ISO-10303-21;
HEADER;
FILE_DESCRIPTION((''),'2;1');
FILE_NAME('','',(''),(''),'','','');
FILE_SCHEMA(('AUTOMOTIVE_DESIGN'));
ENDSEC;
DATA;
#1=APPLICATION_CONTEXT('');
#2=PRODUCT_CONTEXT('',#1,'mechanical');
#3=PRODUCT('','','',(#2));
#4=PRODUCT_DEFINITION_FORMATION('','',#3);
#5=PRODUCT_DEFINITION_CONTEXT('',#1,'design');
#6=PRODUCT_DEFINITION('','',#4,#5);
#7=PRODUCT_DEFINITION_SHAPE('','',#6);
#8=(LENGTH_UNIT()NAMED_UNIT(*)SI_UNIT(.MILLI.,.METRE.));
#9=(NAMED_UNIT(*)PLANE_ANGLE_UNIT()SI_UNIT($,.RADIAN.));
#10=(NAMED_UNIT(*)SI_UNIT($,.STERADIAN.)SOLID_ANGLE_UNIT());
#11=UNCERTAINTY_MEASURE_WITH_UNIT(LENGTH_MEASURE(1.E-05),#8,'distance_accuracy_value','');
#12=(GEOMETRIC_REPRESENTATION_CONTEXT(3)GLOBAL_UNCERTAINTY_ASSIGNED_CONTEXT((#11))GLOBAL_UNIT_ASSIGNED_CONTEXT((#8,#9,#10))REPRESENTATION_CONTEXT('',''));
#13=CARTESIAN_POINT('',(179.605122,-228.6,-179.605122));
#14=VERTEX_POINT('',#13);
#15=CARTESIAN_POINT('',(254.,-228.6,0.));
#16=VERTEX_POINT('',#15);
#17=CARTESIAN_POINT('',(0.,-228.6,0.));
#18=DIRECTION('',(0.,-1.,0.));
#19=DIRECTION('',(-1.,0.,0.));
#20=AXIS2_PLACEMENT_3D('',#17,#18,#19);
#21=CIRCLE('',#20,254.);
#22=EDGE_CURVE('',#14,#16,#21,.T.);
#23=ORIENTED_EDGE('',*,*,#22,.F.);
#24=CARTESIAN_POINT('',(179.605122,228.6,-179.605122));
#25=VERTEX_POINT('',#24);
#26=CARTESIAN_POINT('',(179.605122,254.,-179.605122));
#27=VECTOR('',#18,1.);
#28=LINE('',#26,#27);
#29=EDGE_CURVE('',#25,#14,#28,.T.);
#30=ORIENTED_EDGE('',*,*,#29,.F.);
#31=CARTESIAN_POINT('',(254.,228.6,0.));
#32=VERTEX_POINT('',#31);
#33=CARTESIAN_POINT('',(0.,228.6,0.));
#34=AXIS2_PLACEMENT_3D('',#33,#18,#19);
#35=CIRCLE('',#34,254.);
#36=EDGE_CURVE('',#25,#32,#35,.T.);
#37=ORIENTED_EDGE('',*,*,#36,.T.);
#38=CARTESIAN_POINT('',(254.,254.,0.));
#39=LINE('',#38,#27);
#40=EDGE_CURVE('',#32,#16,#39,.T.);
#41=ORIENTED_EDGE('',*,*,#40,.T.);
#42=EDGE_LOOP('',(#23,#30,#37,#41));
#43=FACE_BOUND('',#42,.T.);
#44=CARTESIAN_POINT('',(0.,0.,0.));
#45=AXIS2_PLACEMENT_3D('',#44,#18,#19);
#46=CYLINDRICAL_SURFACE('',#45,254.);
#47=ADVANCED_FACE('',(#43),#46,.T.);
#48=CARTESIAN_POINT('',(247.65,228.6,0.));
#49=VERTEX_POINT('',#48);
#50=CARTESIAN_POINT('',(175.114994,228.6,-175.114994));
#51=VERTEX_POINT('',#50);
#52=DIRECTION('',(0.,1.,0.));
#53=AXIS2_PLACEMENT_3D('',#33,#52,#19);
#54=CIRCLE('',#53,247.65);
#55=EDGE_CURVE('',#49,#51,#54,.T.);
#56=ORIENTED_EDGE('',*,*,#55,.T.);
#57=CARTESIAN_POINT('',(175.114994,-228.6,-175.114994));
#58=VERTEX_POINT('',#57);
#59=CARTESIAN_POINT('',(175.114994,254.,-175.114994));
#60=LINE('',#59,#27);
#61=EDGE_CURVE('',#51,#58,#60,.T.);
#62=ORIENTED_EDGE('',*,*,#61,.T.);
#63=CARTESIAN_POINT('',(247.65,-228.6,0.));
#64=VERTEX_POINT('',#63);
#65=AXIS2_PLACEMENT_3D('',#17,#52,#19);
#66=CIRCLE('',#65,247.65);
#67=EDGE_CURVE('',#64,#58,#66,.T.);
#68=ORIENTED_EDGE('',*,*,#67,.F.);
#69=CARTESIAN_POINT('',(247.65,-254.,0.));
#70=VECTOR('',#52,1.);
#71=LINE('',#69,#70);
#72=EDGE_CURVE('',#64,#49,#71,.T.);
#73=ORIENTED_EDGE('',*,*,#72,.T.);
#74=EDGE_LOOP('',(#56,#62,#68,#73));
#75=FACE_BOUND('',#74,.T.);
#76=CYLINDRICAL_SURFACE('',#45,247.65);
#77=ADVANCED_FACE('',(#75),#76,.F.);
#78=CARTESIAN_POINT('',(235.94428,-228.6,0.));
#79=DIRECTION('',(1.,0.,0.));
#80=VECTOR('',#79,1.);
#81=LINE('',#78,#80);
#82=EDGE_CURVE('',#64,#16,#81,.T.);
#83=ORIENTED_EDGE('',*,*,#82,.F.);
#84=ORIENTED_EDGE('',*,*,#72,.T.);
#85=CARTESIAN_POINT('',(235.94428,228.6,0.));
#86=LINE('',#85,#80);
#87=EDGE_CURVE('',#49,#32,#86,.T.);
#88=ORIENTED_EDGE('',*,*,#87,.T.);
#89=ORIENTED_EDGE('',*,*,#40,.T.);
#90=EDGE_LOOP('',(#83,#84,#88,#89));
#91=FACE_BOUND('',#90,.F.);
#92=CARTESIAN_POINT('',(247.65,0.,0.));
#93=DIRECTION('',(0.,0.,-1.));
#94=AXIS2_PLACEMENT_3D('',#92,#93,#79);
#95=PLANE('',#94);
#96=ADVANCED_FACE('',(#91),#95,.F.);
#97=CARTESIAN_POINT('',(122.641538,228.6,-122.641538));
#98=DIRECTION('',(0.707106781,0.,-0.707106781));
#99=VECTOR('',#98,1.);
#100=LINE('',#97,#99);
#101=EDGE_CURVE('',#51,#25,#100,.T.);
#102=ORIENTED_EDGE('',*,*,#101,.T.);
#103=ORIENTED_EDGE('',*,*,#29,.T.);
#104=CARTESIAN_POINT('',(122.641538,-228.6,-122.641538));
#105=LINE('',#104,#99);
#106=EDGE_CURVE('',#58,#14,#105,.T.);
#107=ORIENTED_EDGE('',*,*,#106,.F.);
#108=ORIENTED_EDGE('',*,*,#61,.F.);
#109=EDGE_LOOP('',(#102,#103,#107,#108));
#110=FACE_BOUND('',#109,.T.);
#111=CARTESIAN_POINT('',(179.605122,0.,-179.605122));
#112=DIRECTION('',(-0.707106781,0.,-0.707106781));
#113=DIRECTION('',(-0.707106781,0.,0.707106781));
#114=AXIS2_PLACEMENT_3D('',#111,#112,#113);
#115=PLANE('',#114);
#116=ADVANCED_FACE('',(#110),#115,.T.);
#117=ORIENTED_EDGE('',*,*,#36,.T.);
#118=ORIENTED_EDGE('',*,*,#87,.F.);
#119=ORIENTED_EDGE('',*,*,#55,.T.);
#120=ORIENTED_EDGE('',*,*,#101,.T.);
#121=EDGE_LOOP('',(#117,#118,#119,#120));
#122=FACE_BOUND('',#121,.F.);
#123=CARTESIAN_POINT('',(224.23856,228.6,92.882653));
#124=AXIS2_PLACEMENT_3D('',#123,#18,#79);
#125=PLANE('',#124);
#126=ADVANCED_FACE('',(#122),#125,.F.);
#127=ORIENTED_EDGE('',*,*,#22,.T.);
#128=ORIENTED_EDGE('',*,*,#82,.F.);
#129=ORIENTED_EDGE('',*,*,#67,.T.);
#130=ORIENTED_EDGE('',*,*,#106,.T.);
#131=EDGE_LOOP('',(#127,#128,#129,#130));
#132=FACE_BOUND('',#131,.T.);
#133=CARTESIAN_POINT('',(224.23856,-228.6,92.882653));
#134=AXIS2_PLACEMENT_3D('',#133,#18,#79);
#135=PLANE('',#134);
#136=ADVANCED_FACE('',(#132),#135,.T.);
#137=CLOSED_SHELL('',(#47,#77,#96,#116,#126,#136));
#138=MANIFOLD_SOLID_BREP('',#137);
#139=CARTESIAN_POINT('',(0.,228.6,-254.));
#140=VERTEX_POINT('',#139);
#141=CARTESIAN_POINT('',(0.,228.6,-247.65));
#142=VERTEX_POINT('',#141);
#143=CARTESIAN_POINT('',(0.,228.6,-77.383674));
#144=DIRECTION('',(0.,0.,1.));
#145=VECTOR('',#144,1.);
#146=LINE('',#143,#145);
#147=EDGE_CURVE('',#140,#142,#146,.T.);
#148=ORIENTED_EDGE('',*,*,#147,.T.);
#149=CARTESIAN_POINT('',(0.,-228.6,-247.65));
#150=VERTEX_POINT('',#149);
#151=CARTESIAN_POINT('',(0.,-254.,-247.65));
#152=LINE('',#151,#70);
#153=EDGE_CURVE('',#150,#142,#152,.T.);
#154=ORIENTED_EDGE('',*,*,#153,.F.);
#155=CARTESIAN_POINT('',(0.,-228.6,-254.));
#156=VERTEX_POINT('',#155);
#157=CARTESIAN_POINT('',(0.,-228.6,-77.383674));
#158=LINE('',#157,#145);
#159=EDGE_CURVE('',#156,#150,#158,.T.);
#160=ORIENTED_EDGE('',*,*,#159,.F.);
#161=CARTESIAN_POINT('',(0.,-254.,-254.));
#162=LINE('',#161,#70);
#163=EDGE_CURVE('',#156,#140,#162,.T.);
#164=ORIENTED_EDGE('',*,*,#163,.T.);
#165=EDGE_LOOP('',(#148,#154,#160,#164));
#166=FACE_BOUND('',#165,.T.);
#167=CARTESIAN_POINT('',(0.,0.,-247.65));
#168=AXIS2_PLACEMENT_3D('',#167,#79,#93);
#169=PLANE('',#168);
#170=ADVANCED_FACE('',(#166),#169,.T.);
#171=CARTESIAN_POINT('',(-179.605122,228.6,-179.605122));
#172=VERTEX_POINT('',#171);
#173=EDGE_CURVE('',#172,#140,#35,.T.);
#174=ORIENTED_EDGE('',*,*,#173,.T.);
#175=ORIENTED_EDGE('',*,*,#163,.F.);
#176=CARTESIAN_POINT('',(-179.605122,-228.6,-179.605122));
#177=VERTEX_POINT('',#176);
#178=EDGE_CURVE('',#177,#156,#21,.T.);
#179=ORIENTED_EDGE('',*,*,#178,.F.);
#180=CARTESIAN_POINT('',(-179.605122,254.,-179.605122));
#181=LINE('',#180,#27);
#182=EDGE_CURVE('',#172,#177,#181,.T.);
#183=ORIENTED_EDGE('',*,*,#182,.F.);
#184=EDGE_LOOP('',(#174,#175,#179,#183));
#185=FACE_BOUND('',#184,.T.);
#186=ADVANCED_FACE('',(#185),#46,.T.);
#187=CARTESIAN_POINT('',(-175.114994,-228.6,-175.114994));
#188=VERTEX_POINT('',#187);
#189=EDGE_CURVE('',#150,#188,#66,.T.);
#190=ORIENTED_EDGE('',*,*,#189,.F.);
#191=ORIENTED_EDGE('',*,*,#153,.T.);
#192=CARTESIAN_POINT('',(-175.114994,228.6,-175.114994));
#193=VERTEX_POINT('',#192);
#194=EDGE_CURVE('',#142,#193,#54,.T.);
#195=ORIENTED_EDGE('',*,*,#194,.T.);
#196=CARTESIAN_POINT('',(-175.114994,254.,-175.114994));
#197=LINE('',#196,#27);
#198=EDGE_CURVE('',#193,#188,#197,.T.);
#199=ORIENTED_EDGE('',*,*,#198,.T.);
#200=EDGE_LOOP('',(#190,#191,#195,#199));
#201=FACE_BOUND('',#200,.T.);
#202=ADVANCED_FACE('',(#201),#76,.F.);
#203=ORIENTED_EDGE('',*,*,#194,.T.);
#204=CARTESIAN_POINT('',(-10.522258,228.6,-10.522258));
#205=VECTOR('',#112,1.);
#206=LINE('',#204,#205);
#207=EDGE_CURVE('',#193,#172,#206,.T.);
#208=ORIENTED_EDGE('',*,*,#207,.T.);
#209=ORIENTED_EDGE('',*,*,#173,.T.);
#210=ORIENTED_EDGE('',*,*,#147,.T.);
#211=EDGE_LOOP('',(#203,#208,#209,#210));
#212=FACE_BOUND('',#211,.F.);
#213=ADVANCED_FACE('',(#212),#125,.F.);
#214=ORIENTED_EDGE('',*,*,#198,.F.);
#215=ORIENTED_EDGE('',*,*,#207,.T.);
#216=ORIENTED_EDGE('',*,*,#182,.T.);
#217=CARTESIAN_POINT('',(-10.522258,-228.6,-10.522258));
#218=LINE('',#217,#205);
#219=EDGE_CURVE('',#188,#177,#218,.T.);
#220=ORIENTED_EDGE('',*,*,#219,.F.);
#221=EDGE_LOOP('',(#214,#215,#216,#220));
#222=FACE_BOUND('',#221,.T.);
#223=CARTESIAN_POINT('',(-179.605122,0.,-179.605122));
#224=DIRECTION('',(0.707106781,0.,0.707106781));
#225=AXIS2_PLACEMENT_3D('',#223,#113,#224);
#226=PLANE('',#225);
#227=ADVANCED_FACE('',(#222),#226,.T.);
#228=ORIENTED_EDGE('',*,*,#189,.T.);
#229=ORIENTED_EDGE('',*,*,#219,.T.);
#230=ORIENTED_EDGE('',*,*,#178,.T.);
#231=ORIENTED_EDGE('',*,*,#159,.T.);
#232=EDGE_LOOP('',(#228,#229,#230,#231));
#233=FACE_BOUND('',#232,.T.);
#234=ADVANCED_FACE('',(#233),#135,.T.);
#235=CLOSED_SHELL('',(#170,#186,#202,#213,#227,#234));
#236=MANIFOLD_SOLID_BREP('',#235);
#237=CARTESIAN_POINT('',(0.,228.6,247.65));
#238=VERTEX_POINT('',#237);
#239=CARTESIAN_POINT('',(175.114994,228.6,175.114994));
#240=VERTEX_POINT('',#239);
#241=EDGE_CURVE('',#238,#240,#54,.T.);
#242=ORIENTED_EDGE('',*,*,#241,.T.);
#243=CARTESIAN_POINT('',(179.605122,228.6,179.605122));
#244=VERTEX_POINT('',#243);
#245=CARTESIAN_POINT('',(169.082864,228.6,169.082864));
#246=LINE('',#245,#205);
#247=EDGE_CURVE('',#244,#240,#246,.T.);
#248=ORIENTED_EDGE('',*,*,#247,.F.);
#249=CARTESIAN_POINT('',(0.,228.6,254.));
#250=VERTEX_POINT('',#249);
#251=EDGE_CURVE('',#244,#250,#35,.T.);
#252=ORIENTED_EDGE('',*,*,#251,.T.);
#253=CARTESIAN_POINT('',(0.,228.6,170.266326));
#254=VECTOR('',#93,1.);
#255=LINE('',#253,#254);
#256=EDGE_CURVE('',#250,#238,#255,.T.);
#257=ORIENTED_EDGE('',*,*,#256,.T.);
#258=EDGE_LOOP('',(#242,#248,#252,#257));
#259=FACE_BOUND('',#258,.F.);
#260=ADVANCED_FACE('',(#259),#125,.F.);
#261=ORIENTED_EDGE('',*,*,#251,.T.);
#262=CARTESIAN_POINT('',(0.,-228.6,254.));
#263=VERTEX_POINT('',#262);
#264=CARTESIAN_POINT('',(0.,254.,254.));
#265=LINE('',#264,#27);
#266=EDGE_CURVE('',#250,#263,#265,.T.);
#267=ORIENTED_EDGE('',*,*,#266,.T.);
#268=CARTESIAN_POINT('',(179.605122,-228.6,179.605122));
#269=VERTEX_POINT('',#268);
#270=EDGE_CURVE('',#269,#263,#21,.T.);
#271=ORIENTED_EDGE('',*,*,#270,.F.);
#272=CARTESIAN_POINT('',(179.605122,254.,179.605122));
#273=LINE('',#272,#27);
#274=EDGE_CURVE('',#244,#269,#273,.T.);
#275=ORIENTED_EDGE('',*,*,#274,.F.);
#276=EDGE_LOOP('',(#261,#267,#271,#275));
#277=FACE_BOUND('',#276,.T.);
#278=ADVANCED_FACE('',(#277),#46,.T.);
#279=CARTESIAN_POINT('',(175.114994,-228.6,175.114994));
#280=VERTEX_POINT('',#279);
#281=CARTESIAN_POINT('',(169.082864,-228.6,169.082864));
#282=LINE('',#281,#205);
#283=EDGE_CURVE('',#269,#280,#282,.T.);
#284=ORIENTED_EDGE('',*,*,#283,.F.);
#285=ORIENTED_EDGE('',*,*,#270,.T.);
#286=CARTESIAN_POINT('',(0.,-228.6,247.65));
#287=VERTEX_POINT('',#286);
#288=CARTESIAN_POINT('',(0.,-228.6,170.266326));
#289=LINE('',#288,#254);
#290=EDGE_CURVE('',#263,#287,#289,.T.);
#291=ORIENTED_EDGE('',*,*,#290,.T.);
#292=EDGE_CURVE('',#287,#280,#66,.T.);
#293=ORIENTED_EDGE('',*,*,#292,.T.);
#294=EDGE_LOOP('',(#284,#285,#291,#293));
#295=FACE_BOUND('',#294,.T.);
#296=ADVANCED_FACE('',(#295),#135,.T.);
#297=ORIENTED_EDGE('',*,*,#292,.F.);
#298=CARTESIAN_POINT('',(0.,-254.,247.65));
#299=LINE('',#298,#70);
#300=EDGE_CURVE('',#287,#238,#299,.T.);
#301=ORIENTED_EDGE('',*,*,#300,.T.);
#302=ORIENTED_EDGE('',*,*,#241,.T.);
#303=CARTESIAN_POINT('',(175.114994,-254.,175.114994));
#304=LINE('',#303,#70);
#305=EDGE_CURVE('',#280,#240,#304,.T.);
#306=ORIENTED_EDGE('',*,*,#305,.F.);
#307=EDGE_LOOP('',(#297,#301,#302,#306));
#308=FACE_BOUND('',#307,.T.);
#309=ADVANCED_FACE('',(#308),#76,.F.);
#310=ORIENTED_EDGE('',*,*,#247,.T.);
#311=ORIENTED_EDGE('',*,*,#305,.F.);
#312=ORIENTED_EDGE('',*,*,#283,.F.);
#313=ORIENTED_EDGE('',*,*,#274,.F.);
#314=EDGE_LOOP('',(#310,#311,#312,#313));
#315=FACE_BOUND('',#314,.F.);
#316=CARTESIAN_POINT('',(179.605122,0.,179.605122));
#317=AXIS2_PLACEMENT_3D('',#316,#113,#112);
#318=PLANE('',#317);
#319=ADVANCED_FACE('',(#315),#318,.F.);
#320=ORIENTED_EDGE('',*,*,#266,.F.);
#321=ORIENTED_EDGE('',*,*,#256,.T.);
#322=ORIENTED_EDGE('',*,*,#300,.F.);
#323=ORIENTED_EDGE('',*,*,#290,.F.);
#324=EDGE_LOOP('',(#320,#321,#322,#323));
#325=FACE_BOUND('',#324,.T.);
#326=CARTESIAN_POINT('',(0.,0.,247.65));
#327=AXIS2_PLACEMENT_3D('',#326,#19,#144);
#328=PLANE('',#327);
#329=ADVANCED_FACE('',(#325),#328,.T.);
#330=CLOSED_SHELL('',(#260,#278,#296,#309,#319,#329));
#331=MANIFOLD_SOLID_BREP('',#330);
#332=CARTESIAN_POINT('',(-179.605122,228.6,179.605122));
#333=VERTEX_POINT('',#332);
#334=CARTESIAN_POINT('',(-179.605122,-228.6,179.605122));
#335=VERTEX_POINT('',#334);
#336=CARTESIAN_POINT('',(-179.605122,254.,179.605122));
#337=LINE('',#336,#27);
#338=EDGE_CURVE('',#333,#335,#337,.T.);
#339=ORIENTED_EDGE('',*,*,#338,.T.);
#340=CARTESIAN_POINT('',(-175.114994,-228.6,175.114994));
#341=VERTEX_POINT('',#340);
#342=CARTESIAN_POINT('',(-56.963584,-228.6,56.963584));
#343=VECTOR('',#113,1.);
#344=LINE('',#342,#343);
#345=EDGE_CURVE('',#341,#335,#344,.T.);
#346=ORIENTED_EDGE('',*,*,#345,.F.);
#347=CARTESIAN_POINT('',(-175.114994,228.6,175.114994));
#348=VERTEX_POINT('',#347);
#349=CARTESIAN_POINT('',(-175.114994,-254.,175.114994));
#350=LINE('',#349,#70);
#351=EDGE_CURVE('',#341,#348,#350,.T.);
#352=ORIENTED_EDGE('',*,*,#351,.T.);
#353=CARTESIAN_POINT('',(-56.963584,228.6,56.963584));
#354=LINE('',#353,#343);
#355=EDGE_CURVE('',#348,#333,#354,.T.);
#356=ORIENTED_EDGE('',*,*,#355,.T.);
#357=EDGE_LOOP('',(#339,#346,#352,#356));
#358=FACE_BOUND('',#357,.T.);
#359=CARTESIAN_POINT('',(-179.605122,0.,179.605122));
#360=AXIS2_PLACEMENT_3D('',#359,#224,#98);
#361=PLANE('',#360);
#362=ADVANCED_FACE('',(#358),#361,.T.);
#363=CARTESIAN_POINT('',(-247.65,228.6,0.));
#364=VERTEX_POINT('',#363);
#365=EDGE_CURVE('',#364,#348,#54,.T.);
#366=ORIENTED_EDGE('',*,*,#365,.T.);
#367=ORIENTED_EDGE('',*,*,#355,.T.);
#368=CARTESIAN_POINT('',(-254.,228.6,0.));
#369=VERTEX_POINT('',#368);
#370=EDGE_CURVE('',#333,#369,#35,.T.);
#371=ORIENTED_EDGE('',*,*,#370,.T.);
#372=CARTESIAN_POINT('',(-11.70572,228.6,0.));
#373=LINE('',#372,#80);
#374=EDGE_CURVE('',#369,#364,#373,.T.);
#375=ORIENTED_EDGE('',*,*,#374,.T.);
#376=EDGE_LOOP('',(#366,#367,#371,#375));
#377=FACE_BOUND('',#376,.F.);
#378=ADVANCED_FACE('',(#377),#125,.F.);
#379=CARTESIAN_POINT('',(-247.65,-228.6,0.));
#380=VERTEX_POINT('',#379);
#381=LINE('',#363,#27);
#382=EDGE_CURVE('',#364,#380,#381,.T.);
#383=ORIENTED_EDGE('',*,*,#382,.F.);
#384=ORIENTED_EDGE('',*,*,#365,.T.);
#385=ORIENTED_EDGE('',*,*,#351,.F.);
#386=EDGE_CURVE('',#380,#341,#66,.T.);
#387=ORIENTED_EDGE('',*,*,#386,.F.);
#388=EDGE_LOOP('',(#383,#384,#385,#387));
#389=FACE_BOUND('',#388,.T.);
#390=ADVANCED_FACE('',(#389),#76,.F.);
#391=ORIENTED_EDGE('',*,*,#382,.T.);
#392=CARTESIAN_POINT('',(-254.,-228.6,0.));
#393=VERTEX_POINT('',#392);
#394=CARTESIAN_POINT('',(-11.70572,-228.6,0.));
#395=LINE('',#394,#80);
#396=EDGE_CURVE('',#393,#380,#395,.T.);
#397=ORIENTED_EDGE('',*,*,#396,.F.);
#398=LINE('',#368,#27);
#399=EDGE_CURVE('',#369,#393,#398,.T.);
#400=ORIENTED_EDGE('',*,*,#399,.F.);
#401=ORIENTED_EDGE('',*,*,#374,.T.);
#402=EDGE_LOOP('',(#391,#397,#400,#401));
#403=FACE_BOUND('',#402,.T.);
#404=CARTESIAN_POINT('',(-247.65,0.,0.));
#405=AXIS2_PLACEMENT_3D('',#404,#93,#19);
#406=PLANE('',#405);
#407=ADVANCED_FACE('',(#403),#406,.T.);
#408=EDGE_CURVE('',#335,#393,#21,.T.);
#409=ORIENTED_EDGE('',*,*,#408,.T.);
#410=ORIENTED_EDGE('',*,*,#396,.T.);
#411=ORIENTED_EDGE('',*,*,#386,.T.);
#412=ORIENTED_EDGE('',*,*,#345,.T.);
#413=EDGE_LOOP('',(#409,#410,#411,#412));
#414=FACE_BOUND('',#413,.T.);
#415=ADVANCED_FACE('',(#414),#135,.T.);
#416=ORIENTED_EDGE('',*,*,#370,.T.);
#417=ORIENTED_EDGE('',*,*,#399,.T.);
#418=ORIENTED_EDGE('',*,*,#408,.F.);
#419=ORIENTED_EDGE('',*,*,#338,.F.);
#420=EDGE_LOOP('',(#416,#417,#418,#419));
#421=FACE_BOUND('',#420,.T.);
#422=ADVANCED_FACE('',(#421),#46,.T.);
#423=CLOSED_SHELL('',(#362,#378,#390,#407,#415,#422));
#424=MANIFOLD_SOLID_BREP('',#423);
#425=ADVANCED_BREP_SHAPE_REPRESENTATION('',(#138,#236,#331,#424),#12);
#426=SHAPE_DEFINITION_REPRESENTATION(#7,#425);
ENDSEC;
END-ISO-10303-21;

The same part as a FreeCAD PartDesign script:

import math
import FreeCAD as App
import Part
import Sketcher
Q = App.Units.Quantity

doc = App.newDocument("Part")
body = doc.addObject("PartDesign::Body", "Body")
body.AllowCompound = True

# Sketch on XZ plane
sketch1 = body.newObject("Sketcher::SketchObject", "Sketch")
sketch1.AttachmentSupport = (doc.getObject("XZ_Plane"), [""])
sketch1.MapMode = "FlatFace"
sketch1.addGeometry([
    Part.Circle(App.Vector(0, 0, 0), App.Vector(0, 0, 1), 254),
    Part.Circle(App.Vector(0, 0, 0), App.Vector(0, 0, 1), 248),
], False)
sketch1.addConstraint([
    Sketcher.Constraint("Coincident", 0, 3, -1, 1),
    Sketcher.Constraint("Coincident", 1, 3, -1, 1),
    Sketcher.Constraint("Diameter", 0, Q("20 in")),
    Sketcher.Constraint("Diameter", 1, Q("19.5 in")),
])
pad1 = body.newObject("PartDesign::Pad", "Pad")
pad1.Profile = sketch1
pad1.Length = Q("18 in")
pad1.Midplane = True

# Sketch on XZ plane
sketch2 = body.newObject("Sketcher::SketchObject", "Sketch001")
sketch2.AttachmentSupport = (doc.getObject("XZ_Plane"), [""])
sketch2.MapMode = "FlatFace"
sketch2.addGeometry([
    Part.LineSegment(App.Vector(0, 248, 0), App.Vector(0, 254, 0)),  # 0
    Part.ArcOfCircle(Part.Circle(App.Vector(0, 0, 0), App.Vector(0, 0, 1), 254), math.radians(90), math.radians(135)),  # 1
    Part.LineSegment(App.Vector(-180, 180, 0), App.Vector(-175, 175, 0)),  # 2
    Part.ArcOfCircle(Part.Circle(App.Vector(0, 0, 0), App.Vector(0, 0, 1), 248), math.radians(90), math.radians(135)),  # 3
    Part.ArcOfCircle(Part.Circle(App.Vector(0, 0, 0), App.Vector(0, 0, 1), 254), math.radians(180), math.radians(225)),  # 4
    Part.LineSegment(App.Vector(-180, -180, 0), App.Vector(-175, -175, 0)),  # 5
    Part.ArcOfCircle(Part.Circle(App.Vector(0, 0, 0), App.Vector(0, 0, 1), 248), math.radians(180), math.radians(225)),  # 6
    Part.LineSegment(App.Vector(-248, 0, 0), App.Vector(-254, 0, 0)),  # 7
    Part.ArcOfCircle(Part.Circle(App.Vector(0, 0, 0), App.Vector(0, 0, 1), 254), math.radians(-90), math.radians(-45)),  # 8
    Part.LineSegment(App.Vector(180, -180, 0), App.Vector(175, -175, 0)),  # 9
    Part.ArcOfCircle(Part.Circle(App.Vector(0, 0, 0), App.Vector(0, 0, 1), 248), math.radians(-90), math.radians(-45)),  # 10
    Part.LineSegment(App.Vector(0, -248, 0), App.Vector(0, -254, 0)),  # 11
    Part.LineSegment(App.Vector(248, 0, 0), App.Vector(254, 0, 0)),  # 12
    Part.ArcOfCircle(Part.Circle(App.Vector(0, 0, 0), App.Vector(0, 0, 1), 254), math.radians(0), math.radians(45)),  # 13
    Part.LineSegment(App.Vector(180, 180, 0), App.Vector(175, 175, 0)),  # 14
    Part.ArcOfCircle(Part.Circle(App.Vector(0, 0, 0), App.Vector(0, 0, 1), 248), math.radians(0), math.radians(45)),  # 15
], False)
sketch2.addConstraint([
    Sketcher.Constraint("Coincident", 0, 2, 1, 1),
    Sketcher.Constraint("Coincident", 1, 2, 2, 1),
    Sketcher.Constraint("Coincident", 2, 2, 3, 2),
    Sketcher.Constraint("Coincident", 3, 1, 0, 1),
    Sketcher.Constraint("Coincident", 4, 2, 5, 1),
    Sketcher.Constraint("Coincident", 5, 2, 6, 2),
    Sketcher.Constraint("Coincident", 6, 1, 7, 1),
    Sketcher.Constraint("Coincident", 7, 2, 4, 1),
    Sketcher.Constraint("Coincident", 8, 2, 9, 1),
    Sketcher.Constraint("Coincident", 9, 2, 10, 2),
    Sketcher.Constraint("Coincident", 10, 1, 11, 1),
    Sketcher.Constraint("Coincident", 11, 2, 8, 1),
    Sketcher.Constraint("Coincident", 12, 2, 13, 1),
    Sketcher.Constraint("Coincident", 13, 2, 14, 1),
    Sketcher.Constraint("Coincident", 14, 2, 15, 2),
    Sketcher.Constraint("Coincident", 15, 1, 12, 1),
    Sketcher.Constraint("Vertical", 0),
    Sketcher.Constraint("Horizontal", 7),
    Sketcher.Constraint("Vertical", 11),
    Sketcher.Constraint("Horizontal", 12),
    Sketcher.Constraint("Coincident", 1, 3, -1, 1),
    Sketcher.Constraint("Coincident", 3, 3, -1, 1),
    Sketcher.Constraint("Coincident", 4, 3, -1, 1),
    Sketcher.Constraint("Coincident", 6, 3, -1, 1),
    Sketcher.Constraint("Coincident", 8, 3, -1, 1),
    Sketcher.Constraint("Coincident", 10, 3, -1, 1),
    Sketcher.Constraint("Coincident", 13, 3, -1, 1),
    Sketcher.Constraint("Coincident", 15, 3, -1, 1),
    Sketcher.Constraint("Equal", 1, 4),
    Sketcher.Constraint("Equal", 3, 6),
    Sketcher.Constraint("Equal", 4, 8),
    Sketcher.Constraint("Equal", 6, 10),
    Sketcher.Constraint("Equal", 8, 13),
    Sketcher.Constraint("Equal", 10, 15),
    Sketcher.Constraint("PointOnObject", 0, 2, -2),
    Sketcher.Constraint("PointOnObject", 6, 1, -1),
    Sketcher.Constraint("PointOnObject", 10, 1, -2),
    Sketcher.Constraint("PointOnObject", 12, 2, -1),
    Sketcher.Constraint("Perpendicular", 2, 5),
    Sketcher.Constraint("Perpendicular", 5, 9),
    Sketcher.Constraint("Perpendicular", 9, 14),
    Sketcher.Constraint("Horizontal", 4, 2, 8, 2),
    Sketcher.Constraint("Horizontal", 5, 2, 9, 2),
    Sketcher.Constraint("Horizontal", 1, 2, 13, 2),
    Sketcher.Constraint("Vertical", 2, 2, 5, 2),
    Sketcher.Constraint("Radius", 1, Q("10 in")),
    Sketcher.Constraint("Radius", 3, Q("9.75 in")),
    Sketcher.Constraint("DistanceX", 2, 2, -1, 1, 175.114994),
])
pocket1 = body.newObject("PartDesign::Pocket", "Pocket")
pocket1.Profile = sketch2
pocket1.Length = Q("20 in")
pocket1.Midplane = True

doc.recompute()
